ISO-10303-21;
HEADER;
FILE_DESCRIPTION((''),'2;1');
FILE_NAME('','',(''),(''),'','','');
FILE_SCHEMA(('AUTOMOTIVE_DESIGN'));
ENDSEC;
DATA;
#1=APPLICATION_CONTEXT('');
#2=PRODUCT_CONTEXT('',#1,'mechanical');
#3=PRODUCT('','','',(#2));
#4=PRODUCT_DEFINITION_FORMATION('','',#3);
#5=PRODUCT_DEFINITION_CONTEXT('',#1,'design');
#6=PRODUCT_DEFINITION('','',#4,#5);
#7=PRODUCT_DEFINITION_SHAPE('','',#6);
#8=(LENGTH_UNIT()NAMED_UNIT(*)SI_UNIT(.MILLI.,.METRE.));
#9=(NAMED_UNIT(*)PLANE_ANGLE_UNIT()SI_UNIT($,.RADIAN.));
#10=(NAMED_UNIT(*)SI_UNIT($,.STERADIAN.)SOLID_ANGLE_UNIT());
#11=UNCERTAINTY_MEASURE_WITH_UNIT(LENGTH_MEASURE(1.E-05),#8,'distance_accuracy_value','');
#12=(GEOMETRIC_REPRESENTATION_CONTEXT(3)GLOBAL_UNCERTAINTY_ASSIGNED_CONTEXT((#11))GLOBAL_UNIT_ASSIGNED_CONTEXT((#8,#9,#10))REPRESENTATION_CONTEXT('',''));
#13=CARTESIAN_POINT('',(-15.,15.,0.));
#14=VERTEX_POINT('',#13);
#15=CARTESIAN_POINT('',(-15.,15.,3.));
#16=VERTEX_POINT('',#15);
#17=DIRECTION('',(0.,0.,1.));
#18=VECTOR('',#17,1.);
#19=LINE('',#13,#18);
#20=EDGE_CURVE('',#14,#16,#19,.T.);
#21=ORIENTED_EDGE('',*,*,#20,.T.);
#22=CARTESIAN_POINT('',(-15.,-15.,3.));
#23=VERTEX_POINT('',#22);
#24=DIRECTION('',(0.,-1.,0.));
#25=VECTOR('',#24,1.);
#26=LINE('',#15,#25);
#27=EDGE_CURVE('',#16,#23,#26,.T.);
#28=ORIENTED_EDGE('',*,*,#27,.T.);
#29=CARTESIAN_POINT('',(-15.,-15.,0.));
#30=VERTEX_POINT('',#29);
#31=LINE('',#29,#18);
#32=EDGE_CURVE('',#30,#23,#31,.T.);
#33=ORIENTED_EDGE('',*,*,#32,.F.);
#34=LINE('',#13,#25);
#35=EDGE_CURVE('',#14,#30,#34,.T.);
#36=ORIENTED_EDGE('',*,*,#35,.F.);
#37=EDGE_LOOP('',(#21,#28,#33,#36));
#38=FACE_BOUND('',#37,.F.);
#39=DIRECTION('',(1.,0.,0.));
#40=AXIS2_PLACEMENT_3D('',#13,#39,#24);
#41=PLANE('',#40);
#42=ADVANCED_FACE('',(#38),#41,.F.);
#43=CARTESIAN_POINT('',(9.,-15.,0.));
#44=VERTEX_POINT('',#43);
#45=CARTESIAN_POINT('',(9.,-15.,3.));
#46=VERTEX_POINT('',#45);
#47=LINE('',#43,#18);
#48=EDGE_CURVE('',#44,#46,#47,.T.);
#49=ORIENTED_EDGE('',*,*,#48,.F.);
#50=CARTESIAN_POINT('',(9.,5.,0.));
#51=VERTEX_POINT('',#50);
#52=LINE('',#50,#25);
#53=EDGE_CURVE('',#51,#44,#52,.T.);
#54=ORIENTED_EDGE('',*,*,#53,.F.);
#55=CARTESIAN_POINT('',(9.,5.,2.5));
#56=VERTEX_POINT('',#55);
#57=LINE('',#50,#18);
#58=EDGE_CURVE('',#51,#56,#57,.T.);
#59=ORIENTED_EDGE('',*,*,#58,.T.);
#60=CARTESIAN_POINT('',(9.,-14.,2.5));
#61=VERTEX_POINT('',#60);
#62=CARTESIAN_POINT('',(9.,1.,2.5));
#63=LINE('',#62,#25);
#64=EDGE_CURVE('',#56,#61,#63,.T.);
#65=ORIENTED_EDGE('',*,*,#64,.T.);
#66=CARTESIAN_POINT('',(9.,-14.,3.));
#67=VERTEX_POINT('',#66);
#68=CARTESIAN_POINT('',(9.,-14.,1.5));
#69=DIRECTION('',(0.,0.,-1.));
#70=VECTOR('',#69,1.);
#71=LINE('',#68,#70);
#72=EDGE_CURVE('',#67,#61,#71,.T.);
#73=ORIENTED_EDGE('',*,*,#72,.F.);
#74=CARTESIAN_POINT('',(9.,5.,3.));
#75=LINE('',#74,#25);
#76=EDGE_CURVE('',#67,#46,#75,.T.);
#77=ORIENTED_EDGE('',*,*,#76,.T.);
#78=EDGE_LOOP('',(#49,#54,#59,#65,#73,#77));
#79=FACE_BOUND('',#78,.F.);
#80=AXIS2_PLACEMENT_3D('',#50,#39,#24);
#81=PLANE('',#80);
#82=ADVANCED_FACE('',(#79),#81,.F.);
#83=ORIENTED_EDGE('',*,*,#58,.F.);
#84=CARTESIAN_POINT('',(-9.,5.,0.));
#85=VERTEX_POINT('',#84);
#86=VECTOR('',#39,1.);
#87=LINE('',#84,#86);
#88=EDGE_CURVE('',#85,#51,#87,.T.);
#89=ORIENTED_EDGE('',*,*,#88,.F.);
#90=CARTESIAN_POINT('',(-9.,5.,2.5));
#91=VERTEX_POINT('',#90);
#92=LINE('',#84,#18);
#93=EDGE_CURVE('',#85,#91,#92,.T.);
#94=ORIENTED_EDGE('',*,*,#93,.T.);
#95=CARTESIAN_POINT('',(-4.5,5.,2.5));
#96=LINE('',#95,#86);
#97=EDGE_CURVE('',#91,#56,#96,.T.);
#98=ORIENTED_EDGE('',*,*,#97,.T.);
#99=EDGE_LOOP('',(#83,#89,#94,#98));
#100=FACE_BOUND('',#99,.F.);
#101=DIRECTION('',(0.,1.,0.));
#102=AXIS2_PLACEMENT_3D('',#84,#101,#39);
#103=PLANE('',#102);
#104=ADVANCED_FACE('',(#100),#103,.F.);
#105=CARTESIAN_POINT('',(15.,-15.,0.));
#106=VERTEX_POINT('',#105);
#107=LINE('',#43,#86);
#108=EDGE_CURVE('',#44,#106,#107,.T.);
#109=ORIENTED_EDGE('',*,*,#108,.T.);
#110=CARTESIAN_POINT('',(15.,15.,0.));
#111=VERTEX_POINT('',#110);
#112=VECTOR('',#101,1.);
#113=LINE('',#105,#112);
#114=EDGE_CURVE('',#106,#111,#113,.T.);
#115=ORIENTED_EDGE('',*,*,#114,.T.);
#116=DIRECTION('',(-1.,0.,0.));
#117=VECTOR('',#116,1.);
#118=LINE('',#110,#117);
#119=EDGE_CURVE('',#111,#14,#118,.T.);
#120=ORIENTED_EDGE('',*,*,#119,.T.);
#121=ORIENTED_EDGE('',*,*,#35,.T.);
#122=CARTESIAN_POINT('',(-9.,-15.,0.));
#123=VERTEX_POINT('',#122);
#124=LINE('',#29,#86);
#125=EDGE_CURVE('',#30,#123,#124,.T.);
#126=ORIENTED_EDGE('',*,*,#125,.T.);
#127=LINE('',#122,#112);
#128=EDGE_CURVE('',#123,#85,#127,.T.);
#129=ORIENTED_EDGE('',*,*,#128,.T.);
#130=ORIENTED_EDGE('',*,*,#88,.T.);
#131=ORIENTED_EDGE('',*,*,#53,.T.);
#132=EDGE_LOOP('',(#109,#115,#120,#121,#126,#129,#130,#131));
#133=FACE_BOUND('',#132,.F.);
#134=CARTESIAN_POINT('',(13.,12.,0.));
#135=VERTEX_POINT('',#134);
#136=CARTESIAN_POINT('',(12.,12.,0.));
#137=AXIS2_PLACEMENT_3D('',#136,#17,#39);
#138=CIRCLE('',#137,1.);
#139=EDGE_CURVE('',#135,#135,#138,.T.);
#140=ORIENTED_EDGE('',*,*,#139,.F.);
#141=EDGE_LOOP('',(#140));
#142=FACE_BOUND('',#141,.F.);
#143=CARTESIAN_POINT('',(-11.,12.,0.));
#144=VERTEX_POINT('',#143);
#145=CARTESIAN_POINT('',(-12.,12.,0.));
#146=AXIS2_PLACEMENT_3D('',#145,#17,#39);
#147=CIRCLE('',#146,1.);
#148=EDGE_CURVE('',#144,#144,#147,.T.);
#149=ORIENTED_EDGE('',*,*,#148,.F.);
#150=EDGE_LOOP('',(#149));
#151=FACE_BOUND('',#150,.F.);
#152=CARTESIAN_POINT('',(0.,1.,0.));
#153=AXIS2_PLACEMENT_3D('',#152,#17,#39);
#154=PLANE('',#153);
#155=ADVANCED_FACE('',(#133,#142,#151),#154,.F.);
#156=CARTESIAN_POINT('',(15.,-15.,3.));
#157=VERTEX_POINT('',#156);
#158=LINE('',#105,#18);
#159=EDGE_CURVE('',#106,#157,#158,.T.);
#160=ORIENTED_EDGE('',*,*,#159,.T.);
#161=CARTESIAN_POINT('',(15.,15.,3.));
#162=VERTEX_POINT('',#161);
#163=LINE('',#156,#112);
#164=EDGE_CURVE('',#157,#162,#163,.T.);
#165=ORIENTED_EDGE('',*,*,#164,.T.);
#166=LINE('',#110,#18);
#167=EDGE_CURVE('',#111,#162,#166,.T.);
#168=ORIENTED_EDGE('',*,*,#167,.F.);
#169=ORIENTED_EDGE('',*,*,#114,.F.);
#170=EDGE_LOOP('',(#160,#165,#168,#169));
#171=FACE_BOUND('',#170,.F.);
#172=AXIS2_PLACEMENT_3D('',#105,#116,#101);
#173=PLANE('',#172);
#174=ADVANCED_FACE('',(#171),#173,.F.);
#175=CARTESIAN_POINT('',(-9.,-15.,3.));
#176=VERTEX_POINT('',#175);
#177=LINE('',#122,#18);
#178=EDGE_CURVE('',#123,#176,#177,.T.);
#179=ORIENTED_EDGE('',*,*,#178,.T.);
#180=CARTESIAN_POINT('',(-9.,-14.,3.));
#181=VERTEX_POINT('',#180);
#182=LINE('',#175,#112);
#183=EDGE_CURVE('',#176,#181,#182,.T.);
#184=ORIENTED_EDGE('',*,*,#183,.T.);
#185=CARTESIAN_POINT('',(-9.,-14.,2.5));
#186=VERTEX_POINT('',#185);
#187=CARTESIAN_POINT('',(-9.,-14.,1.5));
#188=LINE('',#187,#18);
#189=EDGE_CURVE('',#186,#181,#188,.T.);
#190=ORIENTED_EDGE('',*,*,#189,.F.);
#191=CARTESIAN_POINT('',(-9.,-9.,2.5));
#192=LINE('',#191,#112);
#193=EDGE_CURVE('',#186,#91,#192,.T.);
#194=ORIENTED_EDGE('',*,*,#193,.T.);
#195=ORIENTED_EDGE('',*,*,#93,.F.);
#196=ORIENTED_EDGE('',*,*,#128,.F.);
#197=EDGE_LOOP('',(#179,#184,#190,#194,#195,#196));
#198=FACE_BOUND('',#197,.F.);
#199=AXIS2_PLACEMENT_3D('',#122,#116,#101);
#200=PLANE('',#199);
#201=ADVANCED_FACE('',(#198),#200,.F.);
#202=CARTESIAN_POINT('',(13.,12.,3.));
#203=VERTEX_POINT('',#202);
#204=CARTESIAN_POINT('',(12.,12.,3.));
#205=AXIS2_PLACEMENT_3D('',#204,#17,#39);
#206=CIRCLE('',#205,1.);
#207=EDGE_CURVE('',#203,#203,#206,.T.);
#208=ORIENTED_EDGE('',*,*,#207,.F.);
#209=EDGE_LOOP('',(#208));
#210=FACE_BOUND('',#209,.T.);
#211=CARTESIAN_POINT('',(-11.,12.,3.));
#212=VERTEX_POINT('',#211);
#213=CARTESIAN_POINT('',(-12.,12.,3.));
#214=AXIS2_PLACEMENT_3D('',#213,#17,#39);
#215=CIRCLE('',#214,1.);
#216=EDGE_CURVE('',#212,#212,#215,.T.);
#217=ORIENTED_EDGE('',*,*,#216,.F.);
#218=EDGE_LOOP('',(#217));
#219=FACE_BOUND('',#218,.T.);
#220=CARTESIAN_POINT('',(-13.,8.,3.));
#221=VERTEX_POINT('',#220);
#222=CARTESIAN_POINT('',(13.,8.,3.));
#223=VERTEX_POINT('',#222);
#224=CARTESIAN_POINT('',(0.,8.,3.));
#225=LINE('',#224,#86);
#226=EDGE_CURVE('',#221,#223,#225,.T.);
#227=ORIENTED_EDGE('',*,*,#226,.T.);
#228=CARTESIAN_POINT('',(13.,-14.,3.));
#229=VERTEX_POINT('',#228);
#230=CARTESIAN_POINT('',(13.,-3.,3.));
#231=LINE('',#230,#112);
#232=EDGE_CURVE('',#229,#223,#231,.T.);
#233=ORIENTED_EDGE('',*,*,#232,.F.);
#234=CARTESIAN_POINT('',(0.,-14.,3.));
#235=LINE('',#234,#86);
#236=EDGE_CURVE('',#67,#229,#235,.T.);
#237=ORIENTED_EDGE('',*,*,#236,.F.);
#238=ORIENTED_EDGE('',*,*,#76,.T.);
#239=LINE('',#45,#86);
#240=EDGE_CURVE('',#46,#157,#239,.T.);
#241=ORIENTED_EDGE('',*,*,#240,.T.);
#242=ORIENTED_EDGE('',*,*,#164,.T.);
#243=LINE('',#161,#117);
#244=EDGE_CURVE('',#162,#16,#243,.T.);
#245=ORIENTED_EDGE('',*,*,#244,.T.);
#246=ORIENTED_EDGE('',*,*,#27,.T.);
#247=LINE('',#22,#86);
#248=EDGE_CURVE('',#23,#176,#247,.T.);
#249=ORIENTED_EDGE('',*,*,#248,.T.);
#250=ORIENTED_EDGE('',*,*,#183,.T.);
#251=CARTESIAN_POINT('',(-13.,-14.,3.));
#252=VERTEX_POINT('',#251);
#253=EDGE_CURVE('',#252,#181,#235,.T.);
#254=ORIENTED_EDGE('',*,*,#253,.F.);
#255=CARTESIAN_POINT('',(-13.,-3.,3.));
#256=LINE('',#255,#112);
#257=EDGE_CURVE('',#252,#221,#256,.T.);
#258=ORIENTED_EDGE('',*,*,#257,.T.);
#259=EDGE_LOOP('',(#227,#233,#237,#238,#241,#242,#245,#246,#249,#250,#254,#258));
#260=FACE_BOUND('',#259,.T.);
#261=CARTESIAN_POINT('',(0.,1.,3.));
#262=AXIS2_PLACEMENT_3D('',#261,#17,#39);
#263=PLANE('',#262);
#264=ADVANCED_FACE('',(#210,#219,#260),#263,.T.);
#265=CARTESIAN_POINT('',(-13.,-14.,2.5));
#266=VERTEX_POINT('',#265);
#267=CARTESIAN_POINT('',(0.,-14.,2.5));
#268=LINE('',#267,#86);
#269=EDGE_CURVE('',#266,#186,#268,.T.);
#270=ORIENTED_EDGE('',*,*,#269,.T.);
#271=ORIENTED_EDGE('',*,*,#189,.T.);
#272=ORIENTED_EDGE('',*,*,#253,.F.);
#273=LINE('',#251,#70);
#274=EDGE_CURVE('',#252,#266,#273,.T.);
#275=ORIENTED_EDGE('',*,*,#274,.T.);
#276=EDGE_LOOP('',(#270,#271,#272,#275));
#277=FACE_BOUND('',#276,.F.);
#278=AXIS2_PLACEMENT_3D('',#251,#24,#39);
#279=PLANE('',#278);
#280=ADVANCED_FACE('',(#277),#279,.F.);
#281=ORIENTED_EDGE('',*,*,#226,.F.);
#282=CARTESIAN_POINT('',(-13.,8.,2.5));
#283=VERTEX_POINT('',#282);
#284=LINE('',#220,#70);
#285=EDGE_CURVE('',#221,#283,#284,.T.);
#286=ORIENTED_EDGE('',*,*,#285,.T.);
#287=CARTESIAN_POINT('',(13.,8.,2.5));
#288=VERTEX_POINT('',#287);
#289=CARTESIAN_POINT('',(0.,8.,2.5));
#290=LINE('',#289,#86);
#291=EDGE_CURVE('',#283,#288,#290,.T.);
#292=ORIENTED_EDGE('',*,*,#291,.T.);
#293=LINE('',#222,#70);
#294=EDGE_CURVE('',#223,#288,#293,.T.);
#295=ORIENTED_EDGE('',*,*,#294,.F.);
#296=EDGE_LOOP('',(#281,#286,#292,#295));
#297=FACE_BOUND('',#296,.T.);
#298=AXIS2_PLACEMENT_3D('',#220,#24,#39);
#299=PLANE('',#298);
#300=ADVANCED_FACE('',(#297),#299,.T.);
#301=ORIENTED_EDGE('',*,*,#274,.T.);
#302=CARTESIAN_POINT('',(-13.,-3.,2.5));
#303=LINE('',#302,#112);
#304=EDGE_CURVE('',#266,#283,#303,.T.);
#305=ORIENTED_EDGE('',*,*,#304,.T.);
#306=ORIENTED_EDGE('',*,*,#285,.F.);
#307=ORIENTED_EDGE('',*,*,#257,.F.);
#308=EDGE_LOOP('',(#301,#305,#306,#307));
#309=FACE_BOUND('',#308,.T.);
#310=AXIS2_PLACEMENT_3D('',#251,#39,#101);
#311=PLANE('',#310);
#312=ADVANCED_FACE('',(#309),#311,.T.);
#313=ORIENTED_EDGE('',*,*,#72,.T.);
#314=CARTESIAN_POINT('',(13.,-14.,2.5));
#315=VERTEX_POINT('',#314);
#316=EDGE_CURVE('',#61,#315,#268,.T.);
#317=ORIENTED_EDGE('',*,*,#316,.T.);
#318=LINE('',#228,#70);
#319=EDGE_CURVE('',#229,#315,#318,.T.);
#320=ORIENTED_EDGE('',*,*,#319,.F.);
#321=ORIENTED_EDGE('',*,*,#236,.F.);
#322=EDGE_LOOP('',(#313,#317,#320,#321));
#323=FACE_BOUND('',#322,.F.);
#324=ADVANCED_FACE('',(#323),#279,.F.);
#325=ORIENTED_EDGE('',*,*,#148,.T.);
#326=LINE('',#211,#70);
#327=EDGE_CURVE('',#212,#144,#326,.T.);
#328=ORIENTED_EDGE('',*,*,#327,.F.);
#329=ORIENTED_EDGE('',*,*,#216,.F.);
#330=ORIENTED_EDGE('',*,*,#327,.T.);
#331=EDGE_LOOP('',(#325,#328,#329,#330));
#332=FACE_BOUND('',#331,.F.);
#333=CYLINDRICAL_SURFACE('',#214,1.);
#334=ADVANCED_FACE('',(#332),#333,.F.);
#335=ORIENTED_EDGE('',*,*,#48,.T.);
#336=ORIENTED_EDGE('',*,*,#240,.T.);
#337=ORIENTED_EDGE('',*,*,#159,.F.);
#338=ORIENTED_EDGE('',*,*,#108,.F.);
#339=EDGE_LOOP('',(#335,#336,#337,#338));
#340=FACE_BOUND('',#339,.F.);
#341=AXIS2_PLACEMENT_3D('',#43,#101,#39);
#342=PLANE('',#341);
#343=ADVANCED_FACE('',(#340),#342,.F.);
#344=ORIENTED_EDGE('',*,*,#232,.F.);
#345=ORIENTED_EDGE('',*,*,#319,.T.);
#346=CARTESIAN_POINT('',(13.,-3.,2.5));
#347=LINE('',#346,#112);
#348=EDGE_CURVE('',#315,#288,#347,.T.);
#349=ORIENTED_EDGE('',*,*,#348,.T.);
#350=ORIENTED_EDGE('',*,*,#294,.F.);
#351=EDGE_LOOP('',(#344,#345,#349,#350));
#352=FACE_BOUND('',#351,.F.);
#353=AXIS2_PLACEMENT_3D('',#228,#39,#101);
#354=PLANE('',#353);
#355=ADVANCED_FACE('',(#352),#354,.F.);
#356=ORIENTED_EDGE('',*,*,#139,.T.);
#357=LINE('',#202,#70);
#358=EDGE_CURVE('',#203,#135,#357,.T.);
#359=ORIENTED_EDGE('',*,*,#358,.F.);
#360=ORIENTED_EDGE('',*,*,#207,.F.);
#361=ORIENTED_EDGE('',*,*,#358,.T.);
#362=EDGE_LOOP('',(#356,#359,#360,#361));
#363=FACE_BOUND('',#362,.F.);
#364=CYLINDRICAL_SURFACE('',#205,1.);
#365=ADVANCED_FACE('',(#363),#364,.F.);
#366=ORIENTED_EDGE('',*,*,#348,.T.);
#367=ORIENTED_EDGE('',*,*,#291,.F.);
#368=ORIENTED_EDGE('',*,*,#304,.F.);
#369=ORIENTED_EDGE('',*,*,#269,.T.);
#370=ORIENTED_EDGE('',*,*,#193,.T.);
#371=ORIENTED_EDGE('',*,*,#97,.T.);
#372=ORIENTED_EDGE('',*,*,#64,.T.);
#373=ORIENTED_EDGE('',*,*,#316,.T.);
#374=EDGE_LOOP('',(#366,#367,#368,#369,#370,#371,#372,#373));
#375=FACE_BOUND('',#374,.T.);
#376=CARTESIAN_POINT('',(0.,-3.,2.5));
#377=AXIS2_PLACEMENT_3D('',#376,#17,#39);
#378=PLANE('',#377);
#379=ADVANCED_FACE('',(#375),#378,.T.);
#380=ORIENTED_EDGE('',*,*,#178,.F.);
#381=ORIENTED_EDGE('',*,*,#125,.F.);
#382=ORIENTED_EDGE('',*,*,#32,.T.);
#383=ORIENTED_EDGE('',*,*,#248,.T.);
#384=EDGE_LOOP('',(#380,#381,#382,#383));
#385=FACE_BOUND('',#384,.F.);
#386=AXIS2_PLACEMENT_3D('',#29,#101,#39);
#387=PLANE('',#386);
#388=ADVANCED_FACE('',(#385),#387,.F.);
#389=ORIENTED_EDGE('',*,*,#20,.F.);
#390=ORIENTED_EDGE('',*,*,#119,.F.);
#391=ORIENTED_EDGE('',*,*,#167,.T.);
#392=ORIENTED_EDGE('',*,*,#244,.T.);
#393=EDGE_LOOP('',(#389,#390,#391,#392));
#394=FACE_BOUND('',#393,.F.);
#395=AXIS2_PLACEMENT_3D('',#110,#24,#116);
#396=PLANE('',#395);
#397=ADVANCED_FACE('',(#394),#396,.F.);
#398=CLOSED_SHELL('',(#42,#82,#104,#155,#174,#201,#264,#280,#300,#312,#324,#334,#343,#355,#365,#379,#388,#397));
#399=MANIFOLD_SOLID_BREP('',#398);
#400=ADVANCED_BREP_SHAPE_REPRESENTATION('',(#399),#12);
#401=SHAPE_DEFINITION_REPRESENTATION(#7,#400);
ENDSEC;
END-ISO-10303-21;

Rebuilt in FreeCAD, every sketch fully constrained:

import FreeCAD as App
import Part
import Sketcher

V = App.Vector


def add_polygon(sketch, points):
    """Adds a closed chain of lines whose ends are joined by coincident constraints."""
    first, n = sketch.GeometryCount, len(points)
    for a, b in zip(points, points[1:] + points[:1]):
        sketch.addGeometry(Part.LineSegment(App.Vector(*a, 0), App.Vector(*b, 0)), False)
    for i in range(n):
        sketch.addConstraint(Sketcher.Constraint("Coincident", first + i, 2, first + (i + 1) % n, 1))

doc = App.newDocument("Part")
body = doc.addObject("PartDesign::Body", "Body")

sketch1 = body.newObject("Sketcher::SketchObject", "Sketch")
sketch1.AttachmentSupport = (doc.getObject("XY_Plane"), [""])
sketch1.MapMode = "FlatFace"
add_polygon(sketch1, [(15, -15), (15, 15), (-15, 15), (-15, -15), (-9, -15), (-9, 5), (9, 5), (9, -15)])
sketch1.addConstraint([
    Sketcher.Constraint("Vertical", 0),
    Sketcher.Constraint("Horizontal", 1),
    Sketcher.Constraint("Vertical", 2),
    Sketcher.Constraint("Horizontal", 3),
    Sketcher.Constraint("Vertical", 4),
    Sketcher.Constraint("Horizontal", 5),
    Sketcher.Constraint("Vertical", 6),
    Sketcher.Constraint("Horizontal", 7),
    Sketcher.Constraint("Symmetric", 0, 2, 2, 2, -1, 1),
    Sketcher.Constraint("Symmetric", 3, 2, 6, 2, -2),
    Sketcher.Constraint("Equal", 1, 0),
    Sketcher.Constraint("DistanceX", 1, 2, 1, 1, 30.0),
    Sketcher.Constraint("DistanceX", 3, 1, 3, 2, 6.0),
    Sketcher.Constraint("DistanceY", 4, 1, 4, 2, 20.0),
])
pad1 = body.newObject("PartDesign::Pad", "Pad")
pad1.Profile = sketch1
pad1.Length = 3

sketch2 = body.newObject("Sketcher::SketchObject", "Sketch001")
sketch2.AttachmentSupport = (doc.getObject("XY_Plane"), [""])
sketch2.MapMode = "FlatFace"
sketch2.AttachmentOffset = App.Placement(V(0, 0, 3), App.Rotation())
sketch2.addGeometry([
    Part.Circle(V(-12, 12, 0), V(0, 0, 1), 1),
    Part.Circle(V(12, 12, 0), V(0, 0, 1), 1),
], False)
sketch2.addConstraint([
    Sketcher.Constraint("Equal", 0, 1),
    Sketcher.Constraint("Symmetric", 0, 3, 1, 3, -2),
    Sketcher.Constraint("Diameter", 0, 2.0),
    Sketcher.Constraint("DistanceX", 0, 3, -1, 1, 12.0),
    Sketcher.Constraint("DistanceY", -1, 1, 0, 3, 12.0),
])
pocket1 = body.newObject("PartDesign::Pocket", "Pocket")
pocket1.Profile = sketch2
pocket1.Length = 3

sketch3 = body.newObject("Sketcher::SketchObject", "Sketch002")
sketch3.AttachmentSupport = (doc.getObject("XY_Plane"), [""])
sketch3.MapMode = "FlatFace"
sketch3.AttachmentOffset = App.Placement(V(0, 0, 3), App.Rotation())
add_polygon(sketch3, [(-13, 8), (-13, -14), (13, -14), (13, 8)])
sketch3.addConstraint([
    Sketcher.Constraint("Vertical", 0),
    Sketcher.Constraint("Horizontal", 1),
    Sketcher.Constraint("Vertical", 2),
    Sketcher.Constraint("Horizontal", 3),
    Sketcher.Constraint("DistanceX", 1, 1, 1, 2, 26.0),
    Sketcher.Constraint("DistanceY", 0, 2, 0, 1, 22.0),
    Sketcher.Constraint("DistanceX", 0, 2, -1, 1, 13.0),
    Sketcher.Constraint("DistanceY", 0, 2, -1, 1, 14.0),
])
pocket2 = body.newObject("PartDesign::Pocket", "Pocket001")
pocket2.Profile = sketch3
pocket2.Length = 0.5

doc.recompute()
